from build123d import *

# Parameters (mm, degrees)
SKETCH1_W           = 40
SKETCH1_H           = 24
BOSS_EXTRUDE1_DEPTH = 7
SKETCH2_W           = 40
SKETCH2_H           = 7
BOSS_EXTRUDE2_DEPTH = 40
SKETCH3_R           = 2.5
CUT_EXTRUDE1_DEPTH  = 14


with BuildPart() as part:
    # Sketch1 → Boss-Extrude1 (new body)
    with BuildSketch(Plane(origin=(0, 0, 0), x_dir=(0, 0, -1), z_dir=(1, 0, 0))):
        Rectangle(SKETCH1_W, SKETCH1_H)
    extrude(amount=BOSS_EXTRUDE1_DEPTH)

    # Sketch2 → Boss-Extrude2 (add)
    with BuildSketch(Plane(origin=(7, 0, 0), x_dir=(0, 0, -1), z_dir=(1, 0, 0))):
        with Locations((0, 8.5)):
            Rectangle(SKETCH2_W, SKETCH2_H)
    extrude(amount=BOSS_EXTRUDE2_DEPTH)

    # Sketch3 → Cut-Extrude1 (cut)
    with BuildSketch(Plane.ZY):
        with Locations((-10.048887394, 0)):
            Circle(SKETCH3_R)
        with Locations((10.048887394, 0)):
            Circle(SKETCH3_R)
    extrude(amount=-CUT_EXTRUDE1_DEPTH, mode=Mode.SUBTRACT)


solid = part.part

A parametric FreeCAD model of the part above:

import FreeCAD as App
import Part
import Sketcher
from FreeCAD import Vector
Q = App.Units.Quantity


def add_polygon(sketch, points):
    """Adds a closed chain of lines whose ends are joined by coincident constraints."""
    first, n = sketch.GeometryCount, len(points)
    for a, b in zip(points, points[1:] + points[:1]):
        sketch.addGeometry(Part.LineSegment(App.Vector(*a, 0), App.Vector(*b, 0)), False)
    for i in range(n):
        sketch.addConstraint(Sketcher.Constraint("Coincident", first + i, 2, first + (i + 1) % n, 1))

doc = App.newDocument("Part")
body = doc.addObject("PartDesign::Body", "Body")

# Sketch on YZ plane
sketch1 = doc.addObject("Sketcher::SketchObject", "Sketch")
body.addObject(sketch1)
sketch1.AttachmentSupport = (doc.YZ_Plane, [""])
sketch1.MapMode = "FlatFace"
add_polygon(sketch1, [(12, 20), (-12, 20), (-12, -20), (12, -20)])  # lines 0-3
sketch1.addConstraint([
    Sketcher.Constraint("Horizontal", 0),
    Sketcher.Constraint("Vertical", 1),
    Sketcher.Constraint("Horizontal", 2),
    Sketcher.Constraint("Vertical", 3),
    Sketcher.Constraint("Symmetric", 0, 2, 2, 2, -1, 1),
    Sketcher.Constraint("DistanceX", 0, 2, 0, 1, Q("24 mm")),
    Sketcher.Constraint("DistanceY", 1, 2, 1, 1, Q("40 mm")),
])
pad1 = doc.addObject("PartDesign::Pad", "Pad")
body.addObject(pad1)
pad1.Profile = sketch1
pad1.Length = 7

# Sketch on YZ plane
sketch2 = doc.addObject("Sketcher::SketchObject", "Sketch001")
body.addObject(sketch2)
sketch2.AttachmentSupport = (doc.YZ_Plane, [""])
sketch2.MapMode = "FlatFace"
sketch2.AttachmentOffset = App.Placement(Vector(0, 0, 7), App.Rotation())
add_polygon(sketch2, [(12, 20), (5, 20), (5, -20), (12, -20)])  # lines 0-3
sketch2.addConstraint([
    Sketcher.Constraint("Horizontal", 0),
    Sketcher.Constraint("Vertical", 1),
    Sketcher.Constraint("Horizontal", 2),
    Sketcher.Constraint("Vertical", 3),
    Sketcher.Constraint("DistanceX", 0, 2, 0, 1, Q("7 mm")),
    Sketcher.Constraint("DistanceY", 1, 2, 1, 1, Q("40 mm")),
    Sketcher.Constraint("DistanceX", -1, 1, 0, 2, Q("5 mm")),
    Sketcher.Constraint("DistanceY", -1, 1, 0, 2, Q("20 mm")),
])
pad2 = doc.addObject("PartDesign::Pad", "Pad001")
body.addObject(pad2)
pad2.Profile = sketch2
pad2.Length = 40

# Sketch on YZ plane
sketch3 = doc.addObject("Sketcher::SketchObject", "Sketch002")
body.addObject(sketch3)
sketch3.AttachmentSupport = (doc.YZ_Plane, [""])
sketch3.MapMode = "FlatFace"
sketch3.addGeometry([
    Part.Circle(Vector(0, -10.048887, 0), Vector(0, 0, 1), 2.5),
    Part.Circle(Vector(0, 10.048887, 0), Vector(0, 0, 1), 2.5),
], False)
sketch3.addConstraint([
    Sketcher.Constraint("Equal", 0, 1),
    Sketcher.Constraint("Symmetric", 0, 3, 1, 3, -1, 1),
    Sketcher.Constraint("PointOnObject", 0, 3, -2),
    Sketcher.Constraint("Diameter", 0, Q("5 mm")),
    Sketcher.Constraint("DistanceY", 0, 3, -1, 1, Q("10.048887 mm")),
])
pocket1 = doc.addObject("PartDesign::Pocket", "Pocket")
body.addObject(pocket1)
pocket1.Profile = sketch3
pocket1.Length = 14
pocket1.Reversed = True

doc.recompute()
